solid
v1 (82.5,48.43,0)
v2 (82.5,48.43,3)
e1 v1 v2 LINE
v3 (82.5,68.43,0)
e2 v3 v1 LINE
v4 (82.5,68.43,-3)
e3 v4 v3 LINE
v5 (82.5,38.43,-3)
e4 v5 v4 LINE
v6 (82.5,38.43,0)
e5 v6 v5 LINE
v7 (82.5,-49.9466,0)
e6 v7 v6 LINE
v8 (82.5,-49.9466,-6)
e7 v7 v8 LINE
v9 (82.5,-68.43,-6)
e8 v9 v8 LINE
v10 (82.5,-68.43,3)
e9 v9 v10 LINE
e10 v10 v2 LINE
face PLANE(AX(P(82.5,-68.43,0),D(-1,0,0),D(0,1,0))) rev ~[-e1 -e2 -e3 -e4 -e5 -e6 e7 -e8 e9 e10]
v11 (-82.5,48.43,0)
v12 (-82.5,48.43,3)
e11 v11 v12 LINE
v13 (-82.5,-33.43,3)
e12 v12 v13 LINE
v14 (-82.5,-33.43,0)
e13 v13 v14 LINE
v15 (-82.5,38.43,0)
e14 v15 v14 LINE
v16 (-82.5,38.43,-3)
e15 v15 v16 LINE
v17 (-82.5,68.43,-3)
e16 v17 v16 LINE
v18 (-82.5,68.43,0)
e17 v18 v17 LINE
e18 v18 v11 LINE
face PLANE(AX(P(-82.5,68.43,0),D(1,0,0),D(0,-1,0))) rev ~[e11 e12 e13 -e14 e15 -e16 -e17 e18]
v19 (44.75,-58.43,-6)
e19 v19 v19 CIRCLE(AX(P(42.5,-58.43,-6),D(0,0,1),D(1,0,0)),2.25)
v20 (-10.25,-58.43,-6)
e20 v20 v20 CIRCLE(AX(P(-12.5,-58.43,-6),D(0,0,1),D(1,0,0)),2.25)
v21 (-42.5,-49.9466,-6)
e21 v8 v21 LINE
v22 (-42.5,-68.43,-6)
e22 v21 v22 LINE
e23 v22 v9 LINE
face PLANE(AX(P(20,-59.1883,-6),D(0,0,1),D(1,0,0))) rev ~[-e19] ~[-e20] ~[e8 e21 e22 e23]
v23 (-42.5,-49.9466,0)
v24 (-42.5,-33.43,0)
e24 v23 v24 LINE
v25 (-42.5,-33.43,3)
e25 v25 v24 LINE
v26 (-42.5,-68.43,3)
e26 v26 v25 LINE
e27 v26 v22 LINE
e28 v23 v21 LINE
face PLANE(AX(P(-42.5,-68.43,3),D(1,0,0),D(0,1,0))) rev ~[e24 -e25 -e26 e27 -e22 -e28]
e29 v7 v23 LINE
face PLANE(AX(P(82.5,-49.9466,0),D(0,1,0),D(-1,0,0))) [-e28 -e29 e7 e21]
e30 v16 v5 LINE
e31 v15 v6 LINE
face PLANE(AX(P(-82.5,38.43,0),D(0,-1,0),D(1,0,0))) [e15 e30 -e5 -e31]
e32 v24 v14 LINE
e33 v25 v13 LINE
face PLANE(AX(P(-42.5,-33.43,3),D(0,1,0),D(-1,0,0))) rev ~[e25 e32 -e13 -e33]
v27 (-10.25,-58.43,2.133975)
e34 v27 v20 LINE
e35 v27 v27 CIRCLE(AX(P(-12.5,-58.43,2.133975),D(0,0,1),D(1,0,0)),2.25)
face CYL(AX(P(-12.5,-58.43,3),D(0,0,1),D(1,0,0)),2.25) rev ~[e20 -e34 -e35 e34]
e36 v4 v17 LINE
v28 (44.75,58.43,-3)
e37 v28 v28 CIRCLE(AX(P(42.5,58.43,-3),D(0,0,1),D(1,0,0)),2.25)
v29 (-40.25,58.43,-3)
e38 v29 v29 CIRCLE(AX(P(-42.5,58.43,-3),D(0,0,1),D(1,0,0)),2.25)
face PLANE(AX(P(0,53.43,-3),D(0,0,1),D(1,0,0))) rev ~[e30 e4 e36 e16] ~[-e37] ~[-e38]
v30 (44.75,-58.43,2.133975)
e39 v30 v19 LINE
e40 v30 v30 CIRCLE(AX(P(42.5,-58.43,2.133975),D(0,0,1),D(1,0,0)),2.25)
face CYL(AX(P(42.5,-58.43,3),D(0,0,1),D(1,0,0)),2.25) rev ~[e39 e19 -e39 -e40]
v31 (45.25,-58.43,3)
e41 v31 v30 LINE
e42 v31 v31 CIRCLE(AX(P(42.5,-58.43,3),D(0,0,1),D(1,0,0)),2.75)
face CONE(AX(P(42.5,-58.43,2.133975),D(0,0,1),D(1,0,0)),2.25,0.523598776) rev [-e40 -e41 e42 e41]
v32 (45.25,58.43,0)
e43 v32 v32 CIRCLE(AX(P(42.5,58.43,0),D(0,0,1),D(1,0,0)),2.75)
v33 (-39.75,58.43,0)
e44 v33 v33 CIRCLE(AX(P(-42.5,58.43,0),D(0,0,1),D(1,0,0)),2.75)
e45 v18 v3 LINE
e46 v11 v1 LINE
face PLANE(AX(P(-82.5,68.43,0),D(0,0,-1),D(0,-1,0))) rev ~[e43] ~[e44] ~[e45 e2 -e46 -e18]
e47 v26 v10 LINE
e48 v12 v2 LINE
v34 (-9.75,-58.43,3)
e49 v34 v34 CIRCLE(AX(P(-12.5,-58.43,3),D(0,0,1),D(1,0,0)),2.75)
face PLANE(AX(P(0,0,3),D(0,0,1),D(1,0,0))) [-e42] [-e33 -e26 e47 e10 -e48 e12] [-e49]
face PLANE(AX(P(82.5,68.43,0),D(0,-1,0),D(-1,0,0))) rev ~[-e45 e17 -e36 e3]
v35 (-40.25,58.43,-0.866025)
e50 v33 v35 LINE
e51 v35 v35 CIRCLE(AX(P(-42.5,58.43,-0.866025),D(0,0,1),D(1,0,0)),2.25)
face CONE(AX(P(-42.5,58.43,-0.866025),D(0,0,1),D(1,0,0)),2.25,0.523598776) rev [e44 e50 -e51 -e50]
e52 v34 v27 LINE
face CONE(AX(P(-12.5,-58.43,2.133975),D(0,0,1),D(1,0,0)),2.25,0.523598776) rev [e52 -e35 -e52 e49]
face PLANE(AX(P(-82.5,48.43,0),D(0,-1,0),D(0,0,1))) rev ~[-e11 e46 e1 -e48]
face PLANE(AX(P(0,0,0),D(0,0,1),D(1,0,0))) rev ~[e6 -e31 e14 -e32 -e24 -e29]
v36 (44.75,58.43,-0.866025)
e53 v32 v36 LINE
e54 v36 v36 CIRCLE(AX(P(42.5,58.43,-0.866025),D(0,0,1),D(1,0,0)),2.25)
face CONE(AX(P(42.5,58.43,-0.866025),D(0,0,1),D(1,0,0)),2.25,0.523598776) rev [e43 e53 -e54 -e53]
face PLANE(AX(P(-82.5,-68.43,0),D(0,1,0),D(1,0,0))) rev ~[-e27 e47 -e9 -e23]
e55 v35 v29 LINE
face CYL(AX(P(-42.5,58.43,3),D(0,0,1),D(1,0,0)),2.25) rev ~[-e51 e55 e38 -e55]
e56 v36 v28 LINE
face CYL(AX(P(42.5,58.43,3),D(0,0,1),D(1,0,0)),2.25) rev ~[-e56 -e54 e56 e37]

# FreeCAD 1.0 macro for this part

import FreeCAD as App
import Part
import Sketcher

V = App.Vector


def edges_at(feature, points):
    """Names of the edges that pass closest to the given points."""
    edges = feature.Shape.Edges
    near = lambda p: min(range(len(edges)), key=lambda i: edges[i].distToShape(Part.Vertex(*p))[0])
    return sorted({f"Edge{near(p) + 1}" for p in points})


def add_polygon(sketch, points):
    """Adds a closed chain of lines whose ends are joined by coincident constraints."""
    first, n = sketch.GeometryCount, len(points)
    for a, b in zip(points, points[1:] + points[:1]):
        sketch.addGeometry(Part.LineSegment(App.Vector(*a, 0), App.Vector(*b, 0)), False)
    for i in range(n):
        sketch.addConstraint(Sketcher.Constraint("Coincident", first + i, 2, first + (i + 1) % n, 1))

doc = App.newDocument("Part")
body = doc.addObject("PartDesign::Body", "Body")

sketch1 = doc.addObject("Sketcher::SketchObject", "Sketch")
body.addObject(sketch1)
sketch1.AttachmentSupport = (doc.XY_Plane, [""])
sketch1.MapMode = "FlatFace"
add_polygon(sketch1, [(-82.5, 68.43), (-82.5, -68.43), (82.5, -68.43), (82.5, 68.43)])
sketch1.addConstraint([
    Sketcher.Constraint("Vertical", 0),
    Sketcher.Constraint("Horizontal", 1),
    Sketcher.Constraint("Vertical", 2),
    Sketcher.Constraint("Horizontal", 3),
    Sketcher.Constraint("Symmetric", 0, 2, 2, 2, -1, 1),
    Sketcher.Constraint("DistanceX", 0, 2, -1, 1, 82.5),
    Sketcher.Constraint("DistanceY", 0, 2, 0, 1, 136.86),
])
pad1 = doc.addObject("PartDesign::Pad", "Pad")
body.addObject(pad1)
pad1.Profile = sketch1
pad1.Length = 3

sketch2 = doc.addObject("Sketcher::SketchObject", "Sketch001")
body.addObject(sketch2)
sketch2.AttachmentSupport = (doc.XY_Plane, [""])
sketch2.MapMode = "FlatFace"
sketch2.AttachmentOffset = App.Placement(V(0, 0, 3), App.Rotation())
add_polygon(sketch2, [(-82.5, -33.43), (-82.5, -68.43), (-42.5, -68.43), (-42.5, -33.43)])
sketch2.addConstraint([
    Sketcher.Constraint("Vertical", 0),
    Sketcher.Constraint("Horizontal", 1),
    Sketcher.Constraint("Vertical", 2),
    Sketcher.Constraint("Horizontal", 3),
    Sketcher.Constraint("DistanceX", 1, 2, -1, 1, 42.5),
    Sketcher.Constraint("DistanceX", 1, 1, 1, 2, 40.0),
    Sketcher.Constraint("DistanceY", 0, 2, 0, 1, 35.0),
    Sketcher.Constraint("DistanceY", 0, 2, -1, 1, 68.43),
])
pocket1 = doc.addObject("PartDesign::Pocket", "Pocket")
body.addObject(pocket1)
pocket1.Profile = sketch2
pocket1.Type = "ThroughAll"

sketch3 = doc.addObject("Sketcher::SketchObject", "Sketch002")
body.addObject(sketch3)
sketch3.AttachmentSupport = (doc.XY_Plane, [""])
sketch3.MapMode = "FlatFace"
add_polygon(sketch3, [(-82.5, 68.43), (82.5, 68.43), (82.5, 38.43), (-82.5, 38.43)])
sketch3.addConstraint([
    Sketcher.Constraint("Horizontal", 0),
    Sketcher.Constraint("Vertical", 1),
    Sketcher.Constraint("Horizontal", 2),
    Sketcher.Constraint("Vertical", 3),
    Sketcher.Constraint("DistanceX", -1, 1, 0, 2, 82.5),
    Sketcher.Constraint("DistanceX", 2, 2, -1, 1, 82.5),
    Sketcher.Constraint("DistanceY", 1, 2, 1, 1, 30.0),
    Sketcher.Constraint("DistanceY", -1, 1, 0, 2, 68.43),
])
pad2 = doc.addObject("PartDesign::Pad", "Pad001")
body.addObject(pad2)
pad2.Profile = sketch3
pad2.Length = 3
pad2.Reversed = True

sketch4 = doc.addObject("Sketcher::SketchObject", "Sketch003")
body.addObject(sketch4)
sketch4.AttachmentSupport = (doc.YZ_Plane, [""])
sketch4.MapMode = "FlatFace"
sketch4.AttachmentOffset = App.Placement(V(0, 0, -82.5), App.Rotation())
add_polygon(sketch4, [(68.43, 3), (68.43, 0), (48.43, 0), (48.43, 3)])
sketch4.addConstraint([
    Sketcher.Constraint("Vertical", 0),
    Sketcher.Constraint("Horizontal", 1),
    Sketcher.Constraint("Vertical", 2),
    Sketcher.Constraint("Horizontal", 3),
    Sketcher.Constraint("PointOnObject", 0, 2, -1),
    Sketcher.Constraint("DistanceX", 1, 2, 1, 1, 20.0),
    Sketcher.Constraint("DistanceY", 0, 2, 0, 1, 3.0),
    Sketcher.Constraint("DistanceX", -1, 1, 0, 2, 68.43),
])
pocket2 = doc.addObject("PartDesign::Pocket", "Pocket001")
body.addObject(pocket2)
pocket2.Profile = sketch4
pocket2.Type = "ThroughAll"
pocket2.Reversed = True

sketch5 = doc.addObject("Sketcher::SketchObject", "Sketch004")
body.addObject(sketch5)
sketch5.AttachmentSupport = (doc.XY_Plane, [""])
sketch5.MapMode = "FlatFace"
add_polygon(sketch5, [(82.5, -68.43), (-42.5, -68.43), (-42.5, -49.9466), (82.5, -49.9466)])
sketch5.addConstraint([
    Sketcher.Constraint("Horizontal", 0),
    Sketcher.Constraint("Vertical", 1),
    Sketcher.Constraint("Horizontal", 2),
    Sketcher.Constraint("Vertical", 3),
    Sketcher.Constraint("DistanceX", 0, 2, 0, 1, 125.0),
    Sketcher.Constraint("DistanceX", 0, 2, -1, 1, 42.5),
    Sketcher.Constraint("DistanceY", 0, 2, -1, 1, 68.43),
    Sketcher.Constraint("DistanceY", 1, 1, 1, 2, 18.4834),
])
pad3 = doc.addObject("PartDesign::Pad", "Pad002")
body.addObject(pad3)
pad3.Profile = sketch5
pad3.Length = 6
pad3.Reversed = True

sketch6 = doc.addObject("Sketcher::SketchObject", "Sketch005")
body.addObject(sketch6)
sketch6.AttachmentSupport = (doc.XY_Plane, [""])
sketch6.MapMode = "FlatFace"
sketch6.AttachmentOffset = App.Placement(V(0, 0, 3), App.Rotation())
sketch6.addGeometry([
    Part.Circle(V(42.5, 58.43, 0), V(0, 0, 1), 2.25),
    Part.Circle(V(42.5, -58.43, 0), V(0, 0, 1), 2.25),
    Part.Circle(V(-12.5, -58.43, 0), V(0, 0, 1), 2.25),
    Part.Circle(V(-42.5, 58.43, 0), V(0, 0, 1), 2.25),
], False)
sketch6.addConstraint([
    Sketcher.Constraint("Equal", 0, 1),
    Sketcher.Constraint("Equal", 1, 2),
    Sketcher.Constraint("Equal", 2, 3),
    Sketcher.Constraint("Symmetric", 1, 3, 3, 3, -1, 1),
    Sketcher.Constraint("Symmetric", 0, 3, 3, 3, -2),
    Sketcher.Constraint("Horizontal", 1, 3, 2, 3),
    Sketcher.Constraint("Diameter", 0, 4.5),
    Sketcher.Constraint("DistanceX", -1, 1, 0, 3, 42.5),
    Sketcher.Constraint("DistanceX", 2, 3, 1, 3, 55.0),
    Sketcher.Constraint("DistanceY", -1, 1, 0, 3, 58.43),
])
pocket3 = doc.addObject("PartDesign::Pocket", "Pocket002")
body.addObject(pocket3)
pocket3.Profile = sketch6
pocket3.Length = 245.2559
doc.recompute()

chamfer = doc.addObject("PartDesign::Chamfer", "Chamfer")
body.addObject(chamfer)
chamfer.Base = (pocket3, edges_at(pocket3, [
    (-14.75, -58.43, 3),
    (40.25, -58.43, 3),
    (42.5, 56.18, 0),
    (-42.5, 56.18, 0),
]))
chamfer.ChamferType = "Distance and Angle"
chamfer.Size = 0.5
chamfer.Angle = 60

doc.recompute()
